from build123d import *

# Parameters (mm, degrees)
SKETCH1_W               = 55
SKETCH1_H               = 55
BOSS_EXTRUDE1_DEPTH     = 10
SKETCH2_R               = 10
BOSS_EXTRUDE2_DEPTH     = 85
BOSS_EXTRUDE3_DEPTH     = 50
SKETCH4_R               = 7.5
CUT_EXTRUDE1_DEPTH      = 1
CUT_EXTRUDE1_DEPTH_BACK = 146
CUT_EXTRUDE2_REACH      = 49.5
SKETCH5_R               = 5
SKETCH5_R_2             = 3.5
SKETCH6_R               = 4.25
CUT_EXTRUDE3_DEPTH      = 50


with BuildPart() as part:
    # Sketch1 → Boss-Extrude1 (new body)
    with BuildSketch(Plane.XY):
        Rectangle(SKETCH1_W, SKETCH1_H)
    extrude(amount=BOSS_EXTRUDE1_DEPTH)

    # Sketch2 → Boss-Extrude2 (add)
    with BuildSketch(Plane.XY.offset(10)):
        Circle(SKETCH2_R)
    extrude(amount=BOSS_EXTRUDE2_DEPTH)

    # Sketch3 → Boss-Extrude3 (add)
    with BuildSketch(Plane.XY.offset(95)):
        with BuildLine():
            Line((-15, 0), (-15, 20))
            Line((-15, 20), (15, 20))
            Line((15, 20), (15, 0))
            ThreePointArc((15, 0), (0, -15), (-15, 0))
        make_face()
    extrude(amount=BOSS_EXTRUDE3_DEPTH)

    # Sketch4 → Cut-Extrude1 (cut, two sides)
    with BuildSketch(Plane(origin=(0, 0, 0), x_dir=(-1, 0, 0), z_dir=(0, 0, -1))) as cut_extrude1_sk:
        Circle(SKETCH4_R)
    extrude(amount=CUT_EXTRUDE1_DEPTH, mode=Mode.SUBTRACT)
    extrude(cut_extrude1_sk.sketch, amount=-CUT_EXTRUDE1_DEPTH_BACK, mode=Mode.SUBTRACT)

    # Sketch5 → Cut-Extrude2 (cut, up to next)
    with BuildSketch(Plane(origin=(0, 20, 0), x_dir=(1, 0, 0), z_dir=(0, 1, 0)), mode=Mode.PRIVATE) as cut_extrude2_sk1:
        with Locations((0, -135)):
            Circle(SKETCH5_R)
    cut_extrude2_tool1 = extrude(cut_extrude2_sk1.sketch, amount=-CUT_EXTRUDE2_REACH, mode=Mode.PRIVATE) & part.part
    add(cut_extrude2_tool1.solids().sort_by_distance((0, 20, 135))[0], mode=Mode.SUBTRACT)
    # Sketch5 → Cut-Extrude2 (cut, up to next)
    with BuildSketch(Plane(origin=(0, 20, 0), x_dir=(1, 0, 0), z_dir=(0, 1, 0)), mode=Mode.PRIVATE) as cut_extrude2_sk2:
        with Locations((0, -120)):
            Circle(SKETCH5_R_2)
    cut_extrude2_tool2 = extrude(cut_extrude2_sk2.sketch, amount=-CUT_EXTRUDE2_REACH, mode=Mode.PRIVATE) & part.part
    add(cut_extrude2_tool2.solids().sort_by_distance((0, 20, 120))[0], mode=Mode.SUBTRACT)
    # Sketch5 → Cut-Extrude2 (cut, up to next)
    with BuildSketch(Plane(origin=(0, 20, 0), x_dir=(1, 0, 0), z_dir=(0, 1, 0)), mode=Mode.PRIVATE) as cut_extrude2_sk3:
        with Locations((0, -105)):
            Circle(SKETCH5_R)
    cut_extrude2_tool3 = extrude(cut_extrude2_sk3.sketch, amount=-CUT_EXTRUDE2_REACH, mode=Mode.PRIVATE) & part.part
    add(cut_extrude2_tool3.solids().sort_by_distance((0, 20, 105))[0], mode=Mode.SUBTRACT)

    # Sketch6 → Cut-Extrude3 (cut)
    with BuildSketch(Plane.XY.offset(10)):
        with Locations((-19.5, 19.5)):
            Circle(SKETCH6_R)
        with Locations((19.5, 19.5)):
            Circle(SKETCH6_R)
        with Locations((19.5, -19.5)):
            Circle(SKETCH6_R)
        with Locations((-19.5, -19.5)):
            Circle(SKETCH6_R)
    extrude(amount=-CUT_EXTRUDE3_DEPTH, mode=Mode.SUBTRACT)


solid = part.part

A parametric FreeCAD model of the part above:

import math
import FreeCAD as App
import Part
import Sketcher
from FreeCAD import Vector
Q = App.Units.Quantity

doc = App.newDocument("Part")
params = doc.addObject("Spreadsheet::Sheet", "Params")
for row, (alias, value) in enumerate([
    ("sketch1_width", "55 mm"),
    ("pad1_length", "10 mm"),
    ("sketch2_diameter", "20 mm"),
    ("pad2_length", "85 mm"),
    ("sketch3_radius", "15 mm"),
    ("sketch3_height", "20 mm"),
    ("pad3_length", "50 mm"),
    ("sketch4_diameter", "15 mm"),
    ("sketch5_diameter", "10 mm"),
    ("sketch6_diameter", "7 mm"),
    ("sketch7_diameter", "10 mm"),
    ("sketch8_diameter", "8.5 mm"),
    ("pocket5_length", "50 mm"),
], start=1):
    params.set(f"A{row}", alias)
    params.set(f"B{row}", "=" + value)
    params.setAlias(f"B{row}", alias)

body = doc.addObject("PartDesign::Body", "Body")

sketch1 = body.newObject("Sketcher::SketchObject", "Sketch")
sketch1.AttachmentSupport = (doc.getObject("XY_Plane"), [""])
sketch1.MapMode = "FlatFace"
sketch1.addGeometry(Part.LineSegment(Vector(-27.5, 27.5, 0), Vector(-27.5, -27.5, 0)), False)
sketch1.addGeometry(Part.LineSegment(Vector(-27.5, -27.5, 0), Vector(27.5, -27.5, 0)), False)
sketch1.addGeometry(Part.LineSegment(Vector(27.5, -27.5, 0), Vector(27.5, 27.5, 0)), False)
sketch1.addGeometry(Part.LineSegment(Vector(27.5, 27.5, 0), Vector(-27.5, 27.5, 0)), False)
sketch1.addConstraint(Sketcher.Constraint("Coincident", 0, 2, 1, 1))
sketch1.addConstraint(Sketcher.Constraint("Coincident", 1, 2, 2, 1))
sketch1.addConstraint(Sketcher.Constraint("Coincident", 2, 2, 3, 1))
sketch1.addConstraint(Sketcher.Constraint("Coincident", 3, 2, 0, 1))
sketch1.addConstraint(Sketcher.Constraint("Vertical", 0))
sketch1.addConstraint(Sketcher.Constraint("Horizontal", 1))
sketch1.addConstraint(Sketcher.Constraint("Vertical", 2))
sketch1.addConstraint(Sketcher.Constraint("Horizontal", 3))
sketch1.addConstraint(Sketcher.Constraint("Symmetric", 0, 2, 2, 2, -1, 1))
sketch1.addConstraint(Sketcher.Constraint("Equal", 3, 0))
sketch1.addConstraint(Sketcher.Constraint("DistanceX", 1, 1, 1, 2, Q("55 mm")))
sketch1.setExpression("Constraints[10]", "Params.sketch1_width")
pad1 = body.newObject("PartDesign::Pad", "Pad")
pad1.Profile = sketch1
pad1.setExpression("Length", "Params.pad1_length")

sketch2 = body.newObject("Sketcher::SketchObject", "Sketch001")
sketch2.AttachmentSupport = (doc.getObject("XY_Plane"), [""])
sketch2.MapMode = "FlatFace"
sketch2.AttachmentOffset = App.Placement(Vector(0, 0, 10), App.Rotation())
sketch2.addGeometry(Part.Circle(Vector(0, 0, 0), Vector(0, 0, 1), 10), False)
sketch2.addConstraint(Sketcher.Constraint("Coincident", 0, 3, -1, 1))
sketch2.addConstraint(Sketcher.Constraint("Diameter", 0, Q("20 mm")))
sketch2.setExpression("Constraints[1]", "Params.sketch2_diameter")
pad2 = body.newObject("PartDesign::Pad", "Pad001")
pad2.Profile = sketch2
pad2.setExpression("Length", "Params.pad2_length")

sketch3 = body.newObject("Sketcher::SketchObject", "Sketch002")
sketch3.AttachmentSupport = (doc.getObject("XY_Plane"), [""])
sketch3.MapMode = "FlatFace"
sketch3.AttachmentOffset = App.Placement(Vector(0, 0, 95), App.Rotation())
sketch3.addGeometry(Part.LineSegment(Vector(-15, 20, 0), Vector(-15, 0, 0)), False)
sketch3.addGeometry(Part.ArcOfCircle(Part.Circle(Vector(0, 0, 0), Vector(0, 0, 1), 15), math.radians(180), math.radians(360)), False)
sketch3.addGeometry(Part.LineSegment(Vector(15, 0, 0), Vector(15, 20, 0)), False)
sketch3.addGeometry(Part.LineSegment(Vector(15, 20, 0), Vector(-15, 20, 0)), False)
sketch3.addConstraint(Sketcher.Constraint("Tangent", 0, 2, 1, 1))
sketch3.addConstraint(Sketcher.Constraint("Tangent", 1, 2, 2, 1))
sketch3.addConstraint(Sketcher.Constraint("Coincident", 2, 2, 3, 1))
sketch3.addConstraint(Sketcher.Constraint("Coincident", 3, 2, 0, 1))
sketch3.addConstraint(Sketcher.Constraint("Vertical", 0))
sketch3.addConstraint(Sketcher.Constraint("Vertical", 2))
sketch3.addConstraint(Sketcher.Constraint("Horizontal", 3))
sketch3.addConstraint(Sketcher.Constraint("Coincident", 1, 3, -1, 1))
sketch3.addConstraint(Sketcher.Constraint("Radius", 1, Q("15 mm")))
sketch3.addConstraint(Sketcher.Constraint("DistanceY", 0, 2, 0, 1, Q("20 mm")))
sketch3.setExpression("Constraints[8]", "Params.sketch3_radius")
sketch3.setExpression("Constraints[9]", "Params.sketch3_height")
pad3 = body.newObject("PartDesign::Pad", "Pad002")
pad3.Profile = sketch3
pad3.setExpression("Length", "Params.pad3_length")

sketch4 = body.newObject("Sketcher::SketchObject", "Sketch003")
sketch4.AttachmentSupport = (doc.getObject("XY_Plane"), [""])
sketch4.MapMode = "FlatFace"
sketch4.addGeometry(Part.Circle(Vector(0, 0, 0), Vector(0, 0, 1), 7.5), False)
sketch4.addConstraint(Sketcher.Constraint("Coincident", 0, 3, -1, 1))
sketch4.addConstraint(Sketcher.Constraint("Diameter", 0, Q("15 mm")))
sketch4.setExpression("Constraints[1]", "Params.sketch4_diameter")
pocket1 = body.newObject("PartDesign::Pocket", "Pocket")
pocket1.Profile = sketch4
pocket1.Type = "ThroughAll"
pocket1.Midplane = True

sketch5 = body.newObject("Sketcher::SketchObject", "Sketch004")
sketch5.AttachmentSupport = (doc.getObject("XZ_Plane"), [""])
sketch5.MapMode = "FlatFace"
sketch5.AttachmentOffset = App.Placement(Vector(0, 0, -20), App.Rotation())
sketch5.addGeometry(Part.Circle(Vector(0, 135, 0), Vector(0, 0, 1), 5), False)
sketch5.addConstraint(Sketcher.Constraint("PointOnObject", 0, 3, -2))
sketch5.addConstraint(Sketcher.Constraint("Diameter", 0, Q("10 mm")))
sketch5.addConstraint(Sketcher.Constraint("DistanceY", -1, 1, 0, 3, Q("135 mm")))
sketch5.setExpression("Constraints[1]", "Params.sketch5_diameter")
pocket2 = body.newObject("PartDesign::Pocket", "Pocket001")
pocket2.Profile = sketch5
pocket2.Type = "UpToFirst"
pocket2.Reversed = True

sketch6 = body.newObject("Sketcher::SketchObject", "Sketch005")
sketch6.AttachmentSupport = (doc.getObject("XZ_Plane"), [""])
sketch6.MapMode = "FlatFace"
sketch6.AttachmentOffset = App.Placement(Vector(0, 0, -20), App.Rotation())
sketch6.addGeometry(Part.Circle(Vector(0, 120, 0), Vector(0, 0, 1), 3.5), False)
sketch6.addConstraint(Sketcher.Constraint("PointOnObject", 0, 3, -2))
sketch6.addConstraint(Sketcher.Constraint("Diameter", 0, Q("7 mm")))
sketch6.addConstraint(Sketcher.Constraint("DistanceY", -1, 1, 0, 3, Q("120 mm")))
sketch6.setExpression("Constraints[1]", "Params.sketch6_diameter")
pocket3 = body.newObject("PartDesign::Pocket", "Pocket002")
pocket3.Profile = sketch6
pocket3.Type = "UpToFirst"
pocket3.Reversed = True

sketch7 = body.newObject("Sketcher::SketchObject", "Sketch006")
sketch7.AttachmentSupport = (doc.getObject("XZ_Plane"), [""])
sketch7.MapMode = "FlatFace"
sketch7.AttachmentOffset = App.Placement(Vector(0, 0, -20), App.Rotation())
sketch7.addGeometry(Part.Circle(Vector(0, 105, 0), Vector(0, 0, 1), 5), False)
sketch7.addConstraint(Sketcher.Constraint("PointOnObject", 0, 3, -2))
sketch7.addConstraint(Sketcher.Constraint("Diameter", 0, Q("10 mm")))
sketch7.addConstraint(Sketcher.Constraint("DistanceY", -1, 1, 0, 3, Q("105 mm")))
sketch7.setExpression("Constraints[1]", "Params.sketch7_diameter")
pocket4 = body.newObject("PartDesign::Pocket", "Pocket003")
pocket4.Profile = sketch7
pocket4.Type = "UpToFirst"
pocket4.Reversed = True

sketch8 = body.newObject("Sketcher::SketchObject", "Sketch007")
sketch8.AttachmentSupport = (doc.getObject("XY_Plane"), [""])
sketch8.MapMode = "FlatFace"
sketch8.AttachmentOffset = App.Placement(Vector(0, 0, 10), App.Rotation())
sketch8.addGeometry(Part.Circle(Vector(-19.5, 19.5, 0), Vector(0, 0, 1), 4.25), False)
sketch8.addGeometry(Part.Circle(Vector(19.5, 19.5, 0), Vector(0, 0, 1), 4.25), False)
sketch8.addGeometry(Part.Circle(Vector(19.5, -19.5, 0), Vector(0, 0, 1), 4.25), False)
sketch8.addGeometry(Part.Circle(Vector(-19.5, -19.5, 0), Vector(0, 0, 1), 4.25), False)
sketch8.addConstraint(Sketcher.Constraint("Equal", 0, 1))
sketch8.addConstraint(Sketcher.Constraint("Equal", 1, 2))
sketch8.addConstraint(Sketcher.Constraint("Equal", 2, 3))
sketch8.addConstraint(Sketcher.Constraint("Symmetric", 0, 3, 2, 3, -1, 1))
sketch8.addConstraint(Sketcher.Constraint("Symmetric", 1, 3, 3, 3, -1, 1))
sketch8.addConstraint(Sketcher.Constraint("Symmetric", 0, 3, 1, 3, -2))
sketch8.addConstraint(Sketcher.Constraint("Diameter", 0, Q("8.5 mm")))
sketch8.addConstraint(Sketcher.Constraint("DistanceX", 0, 3, 1, 3, Q("39 mm")))
sketch8.addConstraint(Sketcher.Constraint("DistanceY", 2, 3, 1, 3, Q("39 mm")))
sketch8.setExpression("Constraints[6]", "Params.sketch8_diameter")
pocket5 = body.newObject("PartDesign::Pocket", "Pocket004")
pocket5.Profile = sketch8
pocket5.setExpression("Length", "Params.pocket5_length")

doc.recompute()
